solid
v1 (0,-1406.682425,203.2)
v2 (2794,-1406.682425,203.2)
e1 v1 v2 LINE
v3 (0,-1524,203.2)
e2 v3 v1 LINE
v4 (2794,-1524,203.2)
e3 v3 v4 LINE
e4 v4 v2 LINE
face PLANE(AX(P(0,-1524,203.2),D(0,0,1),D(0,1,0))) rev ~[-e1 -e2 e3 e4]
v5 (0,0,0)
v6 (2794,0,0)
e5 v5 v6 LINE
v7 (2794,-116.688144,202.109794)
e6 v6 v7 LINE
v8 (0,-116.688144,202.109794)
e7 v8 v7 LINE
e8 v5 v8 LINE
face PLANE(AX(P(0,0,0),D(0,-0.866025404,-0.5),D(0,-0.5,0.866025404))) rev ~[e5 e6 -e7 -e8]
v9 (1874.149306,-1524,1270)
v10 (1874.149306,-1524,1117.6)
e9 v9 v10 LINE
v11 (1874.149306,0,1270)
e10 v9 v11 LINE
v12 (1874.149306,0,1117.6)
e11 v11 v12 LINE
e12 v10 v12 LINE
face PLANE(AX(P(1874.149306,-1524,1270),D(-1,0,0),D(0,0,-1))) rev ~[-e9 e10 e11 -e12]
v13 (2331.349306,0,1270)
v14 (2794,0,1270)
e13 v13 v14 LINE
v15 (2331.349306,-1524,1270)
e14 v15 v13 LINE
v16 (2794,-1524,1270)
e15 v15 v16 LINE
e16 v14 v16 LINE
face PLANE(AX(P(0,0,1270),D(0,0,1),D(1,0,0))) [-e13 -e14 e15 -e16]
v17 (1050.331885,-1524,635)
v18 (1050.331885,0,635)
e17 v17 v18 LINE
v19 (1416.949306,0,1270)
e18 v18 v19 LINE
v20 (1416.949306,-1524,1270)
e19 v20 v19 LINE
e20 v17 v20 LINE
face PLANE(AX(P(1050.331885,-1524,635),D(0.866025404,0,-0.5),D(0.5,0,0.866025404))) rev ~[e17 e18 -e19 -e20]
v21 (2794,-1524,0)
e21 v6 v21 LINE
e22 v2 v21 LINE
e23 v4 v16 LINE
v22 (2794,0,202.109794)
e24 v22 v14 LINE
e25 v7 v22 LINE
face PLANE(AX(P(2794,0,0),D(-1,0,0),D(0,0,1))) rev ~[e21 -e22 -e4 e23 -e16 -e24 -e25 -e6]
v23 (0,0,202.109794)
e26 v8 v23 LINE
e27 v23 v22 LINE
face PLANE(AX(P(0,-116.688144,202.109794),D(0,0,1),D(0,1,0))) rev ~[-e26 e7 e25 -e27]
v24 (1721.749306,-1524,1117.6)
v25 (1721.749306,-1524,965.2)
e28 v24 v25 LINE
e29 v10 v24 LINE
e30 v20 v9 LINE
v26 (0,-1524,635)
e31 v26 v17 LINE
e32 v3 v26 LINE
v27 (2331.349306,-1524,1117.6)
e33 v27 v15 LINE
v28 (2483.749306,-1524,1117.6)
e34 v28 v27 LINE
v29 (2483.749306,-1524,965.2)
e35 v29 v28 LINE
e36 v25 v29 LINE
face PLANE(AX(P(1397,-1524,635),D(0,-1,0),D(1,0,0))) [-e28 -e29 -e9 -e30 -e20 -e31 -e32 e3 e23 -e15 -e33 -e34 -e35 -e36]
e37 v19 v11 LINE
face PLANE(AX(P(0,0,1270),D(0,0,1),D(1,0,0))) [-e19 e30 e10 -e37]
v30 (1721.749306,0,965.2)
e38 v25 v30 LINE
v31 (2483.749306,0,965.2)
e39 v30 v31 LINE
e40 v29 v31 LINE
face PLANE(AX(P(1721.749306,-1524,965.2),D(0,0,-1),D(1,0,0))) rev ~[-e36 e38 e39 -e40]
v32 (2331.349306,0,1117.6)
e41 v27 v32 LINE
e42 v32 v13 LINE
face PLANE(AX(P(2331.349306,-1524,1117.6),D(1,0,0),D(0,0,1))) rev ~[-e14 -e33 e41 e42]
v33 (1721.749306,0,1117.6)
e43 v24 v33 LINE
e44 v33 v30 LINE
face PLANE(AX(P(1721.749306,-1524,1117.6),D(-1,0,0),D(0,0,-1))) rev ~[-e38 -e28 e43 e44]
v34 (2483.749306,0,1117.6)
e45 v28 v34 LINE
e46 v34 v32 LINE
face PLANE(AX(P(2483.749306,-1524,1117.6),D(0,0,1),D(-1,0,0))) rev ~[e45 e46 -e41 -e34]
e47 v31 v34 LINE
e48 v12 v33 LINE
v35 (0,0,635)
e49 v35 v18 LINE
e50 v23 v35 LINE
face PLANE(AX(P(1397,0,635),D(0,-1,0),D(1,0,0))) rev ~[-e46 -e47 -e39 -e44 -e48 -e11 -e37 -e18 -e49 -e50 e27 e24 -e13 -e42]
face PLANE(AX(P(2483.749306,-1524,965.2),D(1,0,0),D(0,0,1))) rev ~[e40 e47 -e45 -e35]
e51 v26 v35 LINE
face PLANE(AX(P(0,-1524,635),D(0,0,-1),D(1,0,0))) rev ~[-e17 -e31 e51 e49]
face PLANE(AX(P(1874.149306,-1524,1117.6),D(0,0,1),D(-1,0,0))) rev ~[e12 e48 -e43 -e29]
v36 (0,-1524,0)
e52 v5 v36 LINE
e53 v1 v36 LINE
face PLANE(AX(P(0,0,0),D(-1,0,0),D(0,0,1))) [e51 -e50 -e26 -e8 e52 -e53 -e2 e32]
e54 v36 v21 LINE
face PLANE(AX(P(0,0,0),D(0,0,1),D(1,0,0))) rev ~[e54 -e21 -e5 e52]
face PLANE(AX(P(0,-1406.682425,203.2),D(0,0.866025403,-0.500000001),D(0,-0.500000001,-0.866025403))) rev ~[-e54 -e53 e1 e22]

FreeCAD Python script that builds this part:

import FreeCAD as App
import Part
import Sketcher
from FreeCAD import Vector
Q = App.Units.Quantity

doc = App.newDocument("Part")
body = doc.addObject("PartDesign::Body", "Body")

sketch1 = doc.addObject("Sketcher::SketchObject", "Sketch")
body.addObject(sketch1)
sketch1.AttachmentSupport = (doc.XZ_Plane, [""])
sketch1.MapMode = "FlatFace"
sketch1.addGeometry([
    Part.LineSegment(Vector(0, 1270, 0), Vector(0, 0, 0)),
    Part.LineSegment(Vector(0, 0, 0), Vector(2794, 0, 0)),
    Part.LineSegment(Vector(2794, 0, 0), Vector(2794, 1270, 0)),
    Part.LineSegment(Vector(2794, 1270, 0), Vector(0, 1270, 0)),
], False)
sketch1.addConstraint([
    Sketcher.Constraint("Coincident", 0, 2, 1, 1),
    Sketcher.Constraint("Coincident", 1, 2, 2, 1),
    Sketcher.Constraint("Coincident", 2, 2, 3, 1),
    Sketcher.Constraint("Coincident", 3, 2, 0, 1),
    Sketcher.Constraint("Vertical", 0),
    Sketcher.Constraint("Horizontal", 1),
    Sketcher.Constraint("Vertical", 2),
    Sketcher.Constraint("Horizontal", 3),
    Sketcher.Constraint("Coincident", 0, 2, -1, 1),
    Sketcher.Constraint("DistanceX", 1, 1, 1, 2, Q("110 in")),
    Sketcher.Constraint("DistanceY", 0, 2, 0, 1, Q("50 in")),
])
pad1 = doc.addObject("PartDesign::Pad", "Pad")
body.addObject(pad1)
pad1.Profile = sketch1
pad1.Length = Q("60 in")

sketch2 = doc.addObject("Sketcher::SketchObject", "Sketch001")
body.addObject(sketch2)
sketch2.AttachmentSupport = (doc.XZ_Plane, [""])
sketch2.MapMode = "FlatFace"
sketch2.AttachmentOffset = App.Placement(Vector(0, 0, 60 * 25.4), App.Rotation())
sketch2.addGeometry([
    Part.LineSegment(Vector(2331, 1270, 0), Vector(1874, 1270, 0)),
    Part.LineSegment(Vector(1874, 1270, 0), Vector(1874, 1118, 0)),
    Part.LineSegment(Vector(1874, 1118, 0), Vector(1722, 1118, 0)),
    Part.LineSegment(Vector(1722, 1118, 0), Vector(1722, 965, 0)),
    Part.LineSegment(Vector(1722, 965, 0), Vector(2484, 965, 0)),
    Part.LineSegment(Vector(2484, 965, 0), Vector(2484, 1118, 0)),
    Part.LineSegment(Vector(2484, 1118, 0), Vector(2331, 1118, 0)),
    Part.LineSegment(Vector(2331, 1118, 0), Vector(2331, 1270, 0)),
], False)
sketch2.addConstraint([
    Sketcher.Constraint("Coincident", 0, 2, 1, 1),
    Sketcher.Constraint("Coincident", 1, 2, 2, 1),
    Sketcher.Constraint("Coincident", 2, 2, 3, 1),
    Sketcher.Constraint("Coincident", 3, 2, 4, 1),
    Sketcher.Constraint("Coincident", 4, 2, 5, 1),
    Sketcher.Constraint("Coincident", 5, 2, 6, 1),
    Sketcher.Constraint("Coincident", 6, 2, 7, 1),
    Sketcher.Constraint("Coincident", 7, 2, 0, 1),
    Sketcher.Constraint("Horizontal", 0),
    Sketcher.Constraint("Vertical", 1),
    Sketcher.Constraint("Horizontal", 2),
    Sketcher.Constraint("Vertical", 3),
    Sketcher.Constraint("Horizontal", 4),
    Sketcher.Constraint("Vertical", 5),
    Sketcher.Constraint("Horizontal", 6),
    Sketcher.Constraint("Vertical", 7),
    Sketcher.Constraint("Horizontal", 2, 2, 5, 2),
    Sketcher.Constraint("Equal", 2, 6),
    Sketcher.Constraint("Equal", 6, 1),
    Sketcher.Constraint("Equal", 1, 3),
    Sketcher.Constraint("DistanceX", 0, 2, 0, 1, Q("18 in")),
    Sketcher.Constraint("DistanceX", 2, 2, 2, 1, Q("6 in")),
    Sketcher.Constraint("DistanceY", -1, 1, 0, 2, Q("50 in")),
    Sketcher.Constraint("DistanceX", -1, 1, 0, 2, 1874.149306),
])
pocket1 = doc.addObject("PartDesign::Pocket", "Pocket")
body.addObject(pocket1)
pocket1.Profile = sketch2
pocket1.Type = "ThroughAll"

sketch3 = doc.addObject("Sketcher::SketchObject", "Sketch002")
body.addObject(sketch3)
sketch3.AttachmentSupport = (doc.XZ_Plane, [""])
sketch3.MapMode = "FlatFace"
sketch3.AttachmentOffset = App.Placement(Vector(0, 0, 60 * 25.4), App.Rotation())
sketch3.addGeometry([
    Part.LineSegment(Vector(1050, 635, 0), Vector(1417, 1270, 0)),
    Part.LineSegment(Vector(1417, 1270, 0), Vector(0, 1270, 0)),
    Part.LineSegment(Vector(0, 1270, 0), Vector(0, 635, 0)),
    Part.LineSegment(Vector(0, 635, 0), Vector(1050, 635, 0)),
], False)
sketch3.addConstraint([
    Sketcher.Constraint("Coincident", 0, 2, 1, 1),
    Sketcher.Constraint("Coincident", 1, 2, 2, 1),
    Sketcher.Constraint("Coincident", 2, 2, 3, 1),
    Sketcher.Constraint("Coincident", 3, 2, 0, 1),
    Sketcher.Constraint("Horizontal", 1),
    Sketcher.Constraint("Vertical", 2),
    Sketcher.Constraint("Horizontal", 3),
    Sketcher.Constraint("PointOnObject", 1, 2, -2),
    Sketcher.Constraint("DistanceY", 2, 2, 2, 1, Q("25 in")),
    Sketcher.Constraint("DistanceY", -1, 1, 0, 2, Q("50 in")),
    Sketcher.Constraint("Angle", 0, Q("60 deg")),
    Sketcher.Constraint("DistanceX", 1, 2, 1, 1, 1416.949306),
])
pocket2 = doc.addObject("PartDesign::Pocket", "Pocket001")
body.addObject(pocket2)
pocket2.Profile = sketch3
pocket2.Type = "ThroughAll"

sketch4 = doc.addObject("Sketcher::SketchObject", "Sketch003")
body.addObject(sketch4)
sketch4.AttachmentSupport = (doc.YZ_Plane, [""])
sketch4.MapMode = "FlatFace"
sketch4.addGeometry([
    Part.LineSegment(Vector(0, 202, 0), Vector(0, 0, 0)),
    Part.LineSegment(Vector(0, 0, 0), Vector(-117, 202, 0)),
    Part.LineSegment(Vector(-117, 202, 0), Vector(0, 202, 0)),
], False)
sketch4.addConstraint([
    Sketcher.Constraint("Coincident", 0, 2, 1, 1),
    Sketcher.Constraint("Coincident", 1, 2, 2, 1),
    Sketcher.Constraint("Coincident", 2, 2, 0, 1),
    Sketcher.Constraint("Vertical", 0),
    Sketcher.Constraint("Horizontal", 2),
    Sketcher.Constraint("Coincident", 0, 2, -1, 1),
    Sketcher.Constraint("Angle", 1, Q("120 deg")),
    Sketcher.Constraint("DistanceX", 2, 1, 2, 2, 116.688144),
])
pocket3 = doc.addObject("PartDesign::Pocket", "Pocket002")
body.addObject(pocket3)
pocket3.Profile = sketch4
pocket3.Type = "ThroughAll"
pocket3.Reversed = True

sketch5 = doc.addObject("Sketcher::SketchObject", "Sketch004")
body.addObject(sketch5)
sketch5.AttachmentSupport = (doc.YZ_Plane, [""])
sketch5.MapMode = "FlatFace"
sketch5.addGeometry([
    Part.LineSegment(Vector(-1407, 203, 0), Vector(-1524, 0, 0)),
    Part.LineSegment(Vector(-1524, 0, 0), Vector(-1524, 203, 0)),
    Part.LineSegment(Vector(-1524, 203, 0), Vector(-1407, 203, 0)),
], False)
sketch5.addConstraint([
    Sketcher.Constraint("Coincident", 0, 2, 1, 1),
    Sketcher.Constraint("Coincident", 1, 2, 2, 1),
    Sketcher.Constraint("Coincident", 2, 2, 0, 1),
    Sketcher.Constraint("Vertical", 1),
    Sketcher.Constraint("Horizontal", 2),
    Sketcher.Constraint("PointOnObject", 0, 2, -1),
    Sketcher.Constraint("DistanceY", 1, 1, 1, 2, Q("8 in")),
    Sketcher.Constraint("DistanceX", 0, 2, -1, 1, Q("60 in")),
    Sketcher.Constraint("Angle", 0, Q("-120 deg")),
])
pocket4 = doc.addObject("PartDesign::Pocket", "Pocket003")
body.addObject(pocket4)
pocket4.Profile = sketch5
pocket4.Type = "ThroughAll"
pocket4.Reversed = True

doc.recompute()
